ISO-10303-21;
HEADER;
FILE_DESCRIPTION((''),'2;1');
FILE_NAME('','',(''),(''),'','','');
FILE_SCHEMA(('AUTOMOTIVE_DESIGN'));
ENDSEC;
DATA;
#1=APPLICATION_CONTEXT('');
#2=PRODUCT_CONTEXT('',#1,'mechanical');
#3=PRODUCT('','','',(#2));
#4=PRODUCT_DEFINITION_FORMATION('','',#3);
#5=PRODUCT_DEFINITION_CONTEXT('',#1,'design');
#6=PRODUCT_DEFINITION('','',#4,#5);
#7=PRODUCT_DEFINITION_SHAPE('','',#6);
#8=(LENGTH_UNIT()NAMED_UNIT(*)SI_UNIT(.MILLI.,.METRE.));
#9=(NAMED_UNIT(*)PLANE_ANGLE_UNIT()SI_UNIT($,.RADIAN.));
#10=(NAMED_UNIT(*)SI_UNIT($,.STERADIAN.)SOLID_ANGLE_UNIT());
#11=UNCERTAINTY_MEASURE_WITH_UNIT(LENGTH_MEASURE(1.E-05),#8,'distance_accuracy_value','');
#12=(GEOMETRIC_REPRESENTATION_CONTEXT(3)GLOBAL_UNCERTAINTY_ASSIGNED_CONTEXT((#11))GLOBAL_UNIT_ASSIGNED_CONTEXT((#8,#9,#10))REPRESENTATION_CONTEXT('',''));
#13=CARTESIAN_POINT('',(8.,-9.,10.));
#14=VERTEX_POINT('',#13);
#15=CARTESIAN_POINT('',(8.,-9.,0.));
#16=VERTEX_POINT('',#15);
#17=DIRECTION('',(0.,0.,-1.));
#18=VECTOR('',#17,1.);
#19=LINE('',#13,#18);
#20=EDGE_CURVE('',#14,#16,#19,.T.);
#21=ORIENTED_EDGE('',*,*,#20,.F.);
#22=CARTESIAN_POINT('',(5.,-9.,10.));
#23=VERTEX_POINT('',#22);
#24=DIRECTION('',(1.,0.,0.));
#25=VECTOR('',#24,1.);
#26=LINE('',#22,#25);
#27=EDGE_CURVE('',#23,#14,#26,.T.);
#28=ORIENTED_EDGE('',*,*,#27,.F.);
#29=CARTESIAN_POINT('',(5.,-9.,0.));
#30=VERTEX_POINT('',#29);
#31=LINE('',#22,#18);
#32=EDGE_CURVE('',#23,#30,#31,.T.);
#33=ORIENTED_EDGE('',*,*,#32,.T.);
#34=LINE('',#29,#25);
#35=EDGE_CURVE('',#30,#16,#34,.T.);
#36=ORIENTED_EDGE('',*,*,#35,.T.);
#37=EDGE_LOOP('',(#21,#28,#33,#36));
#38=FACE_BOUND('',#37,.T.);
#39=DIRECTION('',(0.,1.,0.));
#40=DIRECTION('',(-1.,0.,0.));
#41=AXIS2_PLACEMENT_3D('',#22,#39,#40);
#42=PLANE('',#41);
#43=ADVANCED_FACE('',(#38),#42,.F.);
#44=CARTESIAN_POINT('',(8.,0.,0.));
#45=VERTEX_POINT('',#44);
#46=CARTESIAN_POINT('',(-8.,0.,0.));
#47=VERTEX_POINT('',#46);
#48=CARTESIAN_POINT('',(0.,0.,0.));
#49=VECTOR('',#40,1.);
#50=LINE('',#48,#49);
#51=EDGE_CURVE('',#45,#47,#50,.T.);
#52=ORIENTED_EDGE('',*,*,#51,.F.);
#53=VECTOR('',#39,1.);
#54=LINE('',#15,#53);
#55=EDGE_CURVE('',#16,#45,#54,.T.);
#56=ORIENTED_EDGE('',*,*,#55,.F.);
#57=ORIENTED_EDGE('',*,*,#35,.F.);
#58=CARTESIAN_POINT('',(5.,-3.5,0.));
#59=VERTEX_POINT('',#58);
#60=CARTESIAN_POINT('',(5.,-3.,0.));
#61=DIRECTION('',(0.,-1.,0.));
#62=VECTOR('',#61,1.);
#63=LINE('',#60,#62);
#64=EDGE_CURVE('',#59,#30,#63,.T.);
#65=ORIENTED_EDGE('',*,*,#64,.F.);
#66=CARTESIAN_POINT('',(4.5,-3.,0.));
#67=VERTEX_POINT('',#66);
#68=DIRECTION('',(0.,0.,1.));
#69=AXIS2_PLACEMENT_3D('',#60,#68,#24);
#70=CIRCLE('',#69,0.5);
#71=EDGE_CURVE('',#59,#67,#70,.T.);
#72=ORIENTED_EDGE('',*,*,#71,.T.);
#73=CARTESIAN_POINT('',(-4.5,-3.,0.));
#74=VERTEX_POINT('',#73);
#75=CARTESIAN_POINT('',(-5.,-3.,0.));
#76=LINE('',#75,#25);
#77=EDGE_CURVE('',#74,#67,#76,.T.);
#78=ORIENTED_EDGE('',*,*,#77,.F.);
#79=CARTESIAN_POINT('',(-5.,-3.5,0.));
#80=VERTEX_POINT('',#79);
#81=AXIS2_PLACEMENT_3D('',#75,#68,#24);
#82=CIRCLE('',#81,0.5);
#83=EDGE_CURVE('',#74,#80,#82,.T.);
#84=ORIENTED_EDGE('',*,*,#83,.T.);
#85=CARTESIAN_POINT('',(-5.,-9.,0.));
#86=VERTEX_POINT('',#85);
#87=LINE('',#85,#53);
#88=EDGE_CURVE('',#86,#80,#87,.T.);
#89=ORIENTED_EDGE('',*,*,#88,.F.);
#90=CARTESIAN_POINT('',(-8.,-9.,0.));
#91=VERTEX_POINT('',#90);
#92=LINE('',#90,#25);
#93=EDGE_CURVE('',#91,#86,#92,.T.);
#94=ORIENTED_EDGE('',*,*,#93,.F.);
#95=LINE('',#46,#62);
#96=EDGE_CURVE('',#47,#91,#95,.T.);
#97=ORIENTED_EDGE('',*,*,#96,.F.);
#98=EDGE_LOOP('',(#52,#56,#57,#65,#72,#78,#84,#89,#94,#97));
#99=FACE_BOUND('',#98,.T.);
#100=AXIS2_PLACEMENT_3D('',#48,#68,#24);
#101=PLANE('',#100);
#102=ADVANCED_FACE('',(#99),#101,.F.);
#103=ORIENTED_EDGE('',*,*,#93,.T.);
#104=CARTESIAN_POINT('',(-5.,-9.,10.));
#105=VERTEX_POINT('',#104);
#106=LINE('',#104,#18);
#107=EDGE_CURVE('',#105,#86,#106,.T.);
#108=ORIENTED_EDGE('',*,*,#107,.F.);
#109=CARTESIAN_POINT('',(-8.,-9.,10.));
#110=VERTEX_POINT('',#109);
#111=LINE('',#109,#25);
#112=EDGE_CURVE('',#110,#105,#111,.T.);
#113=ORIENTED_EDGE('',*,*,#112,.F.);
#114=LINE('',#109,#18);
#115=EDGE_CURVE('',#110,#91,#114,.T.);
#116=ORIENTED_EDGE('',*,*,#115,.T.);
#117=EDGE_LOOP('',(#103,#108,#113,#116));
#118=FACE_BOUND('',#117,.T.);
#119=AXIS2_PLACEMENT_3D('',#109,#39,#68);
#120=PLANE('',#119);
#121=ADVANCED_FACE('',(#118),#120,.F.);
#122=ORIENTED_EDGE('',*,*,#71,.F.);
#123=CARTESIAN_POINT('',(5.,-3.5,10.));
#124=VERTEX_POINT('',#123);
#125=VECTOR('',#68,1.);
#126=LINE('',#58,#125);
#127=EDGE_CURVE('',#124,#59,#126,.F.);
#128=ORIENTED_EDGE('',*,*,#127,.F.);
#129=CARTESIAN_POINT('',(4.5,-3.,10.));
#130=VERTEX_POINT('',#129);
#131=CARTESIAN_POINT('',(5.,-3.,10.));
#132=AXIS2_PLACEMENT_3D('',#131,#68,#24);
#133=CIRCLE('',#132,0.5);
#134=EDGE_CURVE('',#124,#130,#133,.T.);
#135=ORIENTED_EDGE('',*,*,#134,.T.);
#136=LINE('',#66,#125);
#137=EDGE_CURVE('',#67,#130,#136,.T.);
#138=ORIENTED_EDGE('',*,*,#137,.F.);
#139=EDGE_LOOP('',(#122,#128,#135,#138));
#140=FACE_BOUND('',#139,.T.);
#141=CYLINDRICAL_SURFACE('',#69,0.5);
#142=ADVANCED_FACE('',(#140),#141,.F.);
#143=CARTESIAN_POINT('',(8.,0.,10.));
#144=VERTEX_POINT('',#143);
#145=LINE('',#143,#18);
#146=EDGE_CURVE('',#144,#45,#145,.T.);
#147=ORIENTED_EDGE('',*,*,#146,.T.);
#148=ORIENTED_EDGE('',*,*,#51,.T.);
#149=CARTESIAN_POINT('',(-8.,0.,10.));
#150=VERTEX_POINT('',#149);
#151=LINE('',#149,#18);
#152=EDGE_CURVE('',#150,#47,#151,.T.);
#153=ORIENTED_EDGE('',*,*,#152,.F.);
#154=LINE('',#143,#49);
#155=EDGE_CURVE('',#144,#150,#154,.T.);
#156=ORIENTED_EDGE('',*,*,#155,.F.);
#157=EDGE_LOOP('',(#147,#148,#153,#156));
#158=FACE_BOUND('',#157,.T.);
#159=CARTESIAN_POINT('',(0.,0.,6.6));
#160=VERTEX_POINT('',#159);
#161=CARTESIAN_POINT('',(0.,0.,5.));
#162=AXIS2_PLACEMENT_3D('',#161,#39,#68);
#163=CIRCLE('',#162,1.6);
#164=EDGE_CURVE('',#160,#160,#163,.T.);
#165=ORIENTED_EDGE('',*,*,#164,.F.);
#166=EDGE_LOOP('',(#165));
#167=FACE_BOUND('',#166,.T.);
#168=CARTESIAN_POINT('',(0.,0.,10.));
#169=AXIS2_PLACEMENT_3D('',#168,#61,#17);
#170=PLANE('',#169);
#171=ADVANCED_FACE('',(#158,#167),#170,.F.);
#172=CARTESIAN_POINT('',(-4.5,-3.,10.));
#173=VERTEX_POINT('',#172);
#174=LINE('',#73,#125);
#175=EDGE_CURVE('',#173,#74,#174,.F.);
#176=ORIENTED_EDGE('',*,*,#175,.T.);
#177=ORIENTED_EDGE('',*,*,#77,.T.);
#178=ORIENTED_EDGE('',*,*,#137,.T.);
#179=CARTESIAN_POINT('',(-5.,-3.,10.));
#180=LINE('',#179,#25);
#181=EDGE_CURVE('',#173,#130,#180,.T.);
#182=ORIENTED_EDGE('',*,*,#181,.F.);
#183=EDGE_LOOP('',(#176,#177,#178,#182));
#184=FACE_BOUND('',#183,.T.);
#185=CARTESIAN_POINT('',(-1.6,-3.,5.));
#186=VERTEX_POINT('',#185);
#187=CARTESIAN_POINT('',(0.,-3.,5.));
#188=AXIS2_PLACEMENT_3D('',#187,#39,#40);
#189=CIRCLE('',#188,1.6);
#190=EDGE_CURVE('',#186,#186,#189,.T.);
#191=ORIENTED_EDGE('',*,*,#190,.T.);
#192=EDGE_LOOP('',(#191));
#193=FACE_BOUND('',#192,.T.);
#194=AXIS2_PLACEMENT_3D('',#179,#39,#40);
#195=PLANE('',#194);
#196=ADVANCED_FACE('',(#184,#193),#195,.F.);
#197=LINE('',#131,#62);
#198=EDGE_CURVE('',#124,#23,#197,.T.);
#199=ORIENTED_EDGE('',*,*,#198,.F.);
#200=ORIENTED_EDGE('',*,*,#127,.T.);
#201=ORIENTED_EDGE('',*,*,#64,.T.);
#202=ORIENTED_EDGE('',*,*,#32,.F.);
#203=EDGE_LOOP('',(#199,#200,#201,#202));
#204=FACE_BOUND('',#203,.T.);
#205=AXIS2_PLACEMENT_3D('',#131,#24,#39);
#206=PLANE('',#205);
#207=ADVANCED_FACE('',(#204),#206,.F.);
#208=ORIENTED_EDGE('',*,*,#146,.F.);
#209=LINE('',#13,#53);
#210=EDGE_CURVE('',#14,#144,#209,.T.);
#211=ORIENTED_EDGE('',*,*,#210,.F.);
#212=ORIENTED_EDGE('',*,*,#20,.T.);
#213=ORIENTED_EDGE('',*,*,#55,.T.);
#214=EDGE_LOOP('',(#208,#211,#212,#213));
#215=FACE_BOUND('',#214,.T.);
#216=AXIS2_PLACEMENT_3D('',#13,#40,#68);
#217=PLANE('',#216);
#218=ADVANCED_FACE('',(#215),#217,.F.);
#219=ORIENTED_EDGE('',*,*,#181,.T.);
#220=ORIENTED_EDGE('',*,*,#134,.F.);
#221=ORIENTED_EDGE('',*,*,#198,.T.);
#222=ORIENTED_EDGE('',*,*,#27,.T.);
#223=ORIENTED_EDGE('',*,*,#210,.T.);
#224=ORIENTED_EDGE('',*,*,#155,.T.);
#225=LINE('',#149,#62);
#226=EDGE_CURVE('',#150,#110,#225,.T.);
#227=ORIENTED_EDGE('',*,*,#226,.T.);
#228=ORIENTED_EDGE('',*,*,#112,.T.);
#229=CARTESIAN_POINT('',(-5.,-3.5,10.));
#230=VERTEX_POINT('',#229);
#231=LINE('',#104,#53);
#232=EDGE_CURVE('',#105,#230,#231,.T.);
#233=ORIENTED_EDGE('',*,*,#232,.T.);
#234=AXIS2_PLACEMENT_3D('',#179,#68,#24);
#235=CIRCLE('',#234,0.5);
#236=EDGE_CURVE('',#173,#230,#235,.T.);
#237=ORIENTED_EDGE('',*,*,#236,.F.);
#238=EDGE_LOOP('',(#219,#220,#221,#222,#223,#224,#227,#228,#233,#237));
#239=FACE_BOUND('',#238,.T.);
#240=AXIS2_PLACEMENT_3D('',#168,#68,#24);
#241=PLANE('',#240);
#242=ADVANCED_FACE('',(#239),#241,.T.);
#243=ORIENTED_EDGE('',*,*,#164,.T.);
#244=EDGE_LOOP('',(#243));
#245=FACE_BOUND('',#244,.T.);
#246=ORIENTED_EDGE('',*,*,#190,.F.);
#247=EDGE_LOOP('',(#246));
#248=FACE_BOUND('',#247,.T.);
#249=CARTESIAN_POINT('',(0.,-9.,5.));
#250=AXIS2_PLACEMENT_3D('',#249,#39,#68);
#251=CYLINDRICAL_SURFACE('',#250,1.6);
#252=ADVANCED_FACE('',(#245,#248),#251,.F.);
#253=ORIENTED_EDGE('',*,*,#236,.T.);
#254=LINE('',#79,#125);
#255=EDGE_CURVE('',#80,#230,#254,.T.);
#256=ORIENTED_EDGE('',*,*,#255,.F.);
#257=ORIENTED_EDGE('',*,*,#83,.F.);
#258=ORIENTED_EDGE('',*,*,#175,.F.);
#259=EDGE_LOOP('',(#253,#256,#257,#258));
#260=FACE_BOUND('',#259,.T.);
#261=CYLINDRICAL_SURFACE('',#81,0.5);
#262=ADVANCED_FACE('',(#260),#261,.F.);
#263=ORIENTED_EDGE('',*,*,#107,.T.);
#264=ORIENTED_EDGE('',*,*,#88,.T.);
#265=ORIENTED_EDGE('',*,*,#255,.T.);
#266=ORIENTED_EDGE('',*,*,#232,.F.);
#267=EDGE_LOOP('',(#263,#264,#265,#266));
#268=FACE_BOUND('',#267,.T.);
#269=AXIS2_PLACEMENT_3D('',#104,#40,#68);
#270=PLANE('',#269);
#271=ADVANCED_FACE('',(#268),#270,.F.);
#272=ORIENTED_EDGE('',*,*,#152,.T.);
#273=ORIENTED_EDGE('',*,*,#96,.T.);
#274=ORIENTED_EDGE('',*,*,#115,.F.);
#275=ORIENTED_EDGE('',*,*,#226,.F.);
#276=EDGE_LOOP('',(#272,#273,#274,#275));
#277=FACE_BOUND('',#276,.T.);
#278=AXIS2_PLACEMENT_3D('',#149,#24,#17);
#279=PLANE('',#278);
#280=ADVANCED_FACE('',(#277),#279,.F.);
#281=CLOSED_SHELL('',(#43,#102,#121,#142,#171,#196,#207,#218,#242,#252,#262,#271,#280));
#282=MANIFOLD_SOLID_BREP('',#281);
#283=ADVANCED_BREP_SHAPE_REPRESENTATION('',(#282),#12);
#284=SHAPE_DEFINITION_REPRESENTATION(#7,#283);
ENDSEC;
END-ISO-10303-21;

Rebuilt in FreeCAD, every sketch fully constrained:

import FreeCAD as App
import Part
import Sketcher
Q = App.Units.Quantity


def add_polygon(sketch, points):
    """Adds a closed chain of lines whose ends are joined by coincident constraints."""
    first, n = sketch.GeometryCount, len(points)
    for a, b in zip(points, points[1:] + points[:1]):
        sketch.addGeometry(Part.LineSegment(App.Vector(*a, 0), App.Vector(*b, 0)), False)
    for i in range(n):
        sketch.addConstraint(Sketcher.Constraint("Coincident", first + i, 2, first + (i + 1) % n, 1))

doc = App.newDocument("Part")
body = doc.addObject("PartDesign::Body", "Body")

# Sketch on XY plane
sketch1 = body.newObject("Sketcher::SketchObject", "Sketch")
sketch1.AttachmentSupport = (doc.getObject("XY_Plane"), [""])
sketch1.MapMode = "FlatFace"
add_polygon(sketch1, [(-8, 0), (-8, -9), (-5, -9), (-5, -3), (5, -3), (5, -9), (8, -9), (8, 0)])  # lines 0-7
sketch1.addConstraint([
    Sketcher.Constraint("Vertical", 0),
    Sketcher.Constraint("Horizontal", 1),
    Sketcher.Constraint("Vertical", 2),
    Sketcher.Constraint("Horizontal", 3),
    Sketcher.Constraint("Vertical", 4),
    Sketcher.Constraint("Horizontal", 5),
    Sketcher.Constraint("Vertical", 6),
    Sketcher.Constraint("Horizontal", 7),
    Sketcher.Constraint("Symmetric", 6, 2, 7, 2, -1, 1),
    Sketcher.Constraint("Symmetric", 1, 2, 4, 2, -2),
    Sketcher.Constraint("DistanceX", 1, 1, 1, 2, Q("3 mm")),
    Sketcher.Constraint("DistanceX", 3, 1, 3, 2, Q("10 mm")),
    Sketcher.Constraint("DistanceY", 0, 2, 0, 1, Q("9 mm")),
    Sketcher.Constraint("DistanceY", 2, 1, 2, 2, Q("6 mm")),
])
pad1 = body.newObject("PartDesign::Pad", "Pad")
pad1.Profile = sketch1
pad1.Length = 10

# Sketch on XZ plane
sketch2 = body.newObject("Sketcher::SketchObject", "Sketch001")
sketch2.AttachmentSupport = (doc.getObject("XZ_Plane"), [""])
sketch2.MapMode = "FlatFace"
sketch2.addGeometry(Part.Circle(App.Vector(0, 5, 0), App.Vector(0, 0, 1), 1.6), False)
sketch2.addConstraint([
    Sketcher.Constraint("PointOnObject", 0, 3, -2),
    Sketcher.Constraint("Diameter", 0, Q("3.2 mm")),
    Sketcher.Constraint("DistanceY", -1, 1, 0, 3, Q("5 mm")),
])
pocket1 = body.newObject("PartDesign::Pocket", "Pocket")
pocket1.Profile = sketch2
pocket1.Type = "ThroughAll"
pocket1.Reversed = True

# Sketch on XY plane
sketch3 = body.newObject("Sketcher::SketchObject", "Sketch002")
sketch3.AttachmentSupport = (doc.getObject("XY_Plane"), [""])
sketch3.MapMode = "FlatFace"
sketch3.AttachmentOffset = App.Placement(App.Vector(0, 0, 10), App.Rotation())
sketch3.addGeometry([
    Part.Circle(App.Vector(-5, -3, 0), App.Vector(0, 0, 1), 0.5),
    Part.Circle(App.Vector(5, -3, 0), App.Vector(0, 0, 1), 0.5),
], False)
sketch3.addConstraint([
    Sketcher.Constraint("Equal", 0, 1),
    Sketcher.Constraint("Symmetric", 0, 3, 1, 3, -2),
    Sketcher.Constraint("Diameter", 0, Q("1 mm")),
    Sketcher.Constraint("DistanceX", 0, 3, -1, 1, Q("5 mm")),
    Sketcher.Constraint("DistanceY", 0, 3, -1, 1, Q("3 mm")),
])
pocket2 = body.newObject("PartDesign::Pocket", "Pocket001")
pocket2.Profile = sketch3
pocket2.Type = "ThroughAll"

doc.recompute()
